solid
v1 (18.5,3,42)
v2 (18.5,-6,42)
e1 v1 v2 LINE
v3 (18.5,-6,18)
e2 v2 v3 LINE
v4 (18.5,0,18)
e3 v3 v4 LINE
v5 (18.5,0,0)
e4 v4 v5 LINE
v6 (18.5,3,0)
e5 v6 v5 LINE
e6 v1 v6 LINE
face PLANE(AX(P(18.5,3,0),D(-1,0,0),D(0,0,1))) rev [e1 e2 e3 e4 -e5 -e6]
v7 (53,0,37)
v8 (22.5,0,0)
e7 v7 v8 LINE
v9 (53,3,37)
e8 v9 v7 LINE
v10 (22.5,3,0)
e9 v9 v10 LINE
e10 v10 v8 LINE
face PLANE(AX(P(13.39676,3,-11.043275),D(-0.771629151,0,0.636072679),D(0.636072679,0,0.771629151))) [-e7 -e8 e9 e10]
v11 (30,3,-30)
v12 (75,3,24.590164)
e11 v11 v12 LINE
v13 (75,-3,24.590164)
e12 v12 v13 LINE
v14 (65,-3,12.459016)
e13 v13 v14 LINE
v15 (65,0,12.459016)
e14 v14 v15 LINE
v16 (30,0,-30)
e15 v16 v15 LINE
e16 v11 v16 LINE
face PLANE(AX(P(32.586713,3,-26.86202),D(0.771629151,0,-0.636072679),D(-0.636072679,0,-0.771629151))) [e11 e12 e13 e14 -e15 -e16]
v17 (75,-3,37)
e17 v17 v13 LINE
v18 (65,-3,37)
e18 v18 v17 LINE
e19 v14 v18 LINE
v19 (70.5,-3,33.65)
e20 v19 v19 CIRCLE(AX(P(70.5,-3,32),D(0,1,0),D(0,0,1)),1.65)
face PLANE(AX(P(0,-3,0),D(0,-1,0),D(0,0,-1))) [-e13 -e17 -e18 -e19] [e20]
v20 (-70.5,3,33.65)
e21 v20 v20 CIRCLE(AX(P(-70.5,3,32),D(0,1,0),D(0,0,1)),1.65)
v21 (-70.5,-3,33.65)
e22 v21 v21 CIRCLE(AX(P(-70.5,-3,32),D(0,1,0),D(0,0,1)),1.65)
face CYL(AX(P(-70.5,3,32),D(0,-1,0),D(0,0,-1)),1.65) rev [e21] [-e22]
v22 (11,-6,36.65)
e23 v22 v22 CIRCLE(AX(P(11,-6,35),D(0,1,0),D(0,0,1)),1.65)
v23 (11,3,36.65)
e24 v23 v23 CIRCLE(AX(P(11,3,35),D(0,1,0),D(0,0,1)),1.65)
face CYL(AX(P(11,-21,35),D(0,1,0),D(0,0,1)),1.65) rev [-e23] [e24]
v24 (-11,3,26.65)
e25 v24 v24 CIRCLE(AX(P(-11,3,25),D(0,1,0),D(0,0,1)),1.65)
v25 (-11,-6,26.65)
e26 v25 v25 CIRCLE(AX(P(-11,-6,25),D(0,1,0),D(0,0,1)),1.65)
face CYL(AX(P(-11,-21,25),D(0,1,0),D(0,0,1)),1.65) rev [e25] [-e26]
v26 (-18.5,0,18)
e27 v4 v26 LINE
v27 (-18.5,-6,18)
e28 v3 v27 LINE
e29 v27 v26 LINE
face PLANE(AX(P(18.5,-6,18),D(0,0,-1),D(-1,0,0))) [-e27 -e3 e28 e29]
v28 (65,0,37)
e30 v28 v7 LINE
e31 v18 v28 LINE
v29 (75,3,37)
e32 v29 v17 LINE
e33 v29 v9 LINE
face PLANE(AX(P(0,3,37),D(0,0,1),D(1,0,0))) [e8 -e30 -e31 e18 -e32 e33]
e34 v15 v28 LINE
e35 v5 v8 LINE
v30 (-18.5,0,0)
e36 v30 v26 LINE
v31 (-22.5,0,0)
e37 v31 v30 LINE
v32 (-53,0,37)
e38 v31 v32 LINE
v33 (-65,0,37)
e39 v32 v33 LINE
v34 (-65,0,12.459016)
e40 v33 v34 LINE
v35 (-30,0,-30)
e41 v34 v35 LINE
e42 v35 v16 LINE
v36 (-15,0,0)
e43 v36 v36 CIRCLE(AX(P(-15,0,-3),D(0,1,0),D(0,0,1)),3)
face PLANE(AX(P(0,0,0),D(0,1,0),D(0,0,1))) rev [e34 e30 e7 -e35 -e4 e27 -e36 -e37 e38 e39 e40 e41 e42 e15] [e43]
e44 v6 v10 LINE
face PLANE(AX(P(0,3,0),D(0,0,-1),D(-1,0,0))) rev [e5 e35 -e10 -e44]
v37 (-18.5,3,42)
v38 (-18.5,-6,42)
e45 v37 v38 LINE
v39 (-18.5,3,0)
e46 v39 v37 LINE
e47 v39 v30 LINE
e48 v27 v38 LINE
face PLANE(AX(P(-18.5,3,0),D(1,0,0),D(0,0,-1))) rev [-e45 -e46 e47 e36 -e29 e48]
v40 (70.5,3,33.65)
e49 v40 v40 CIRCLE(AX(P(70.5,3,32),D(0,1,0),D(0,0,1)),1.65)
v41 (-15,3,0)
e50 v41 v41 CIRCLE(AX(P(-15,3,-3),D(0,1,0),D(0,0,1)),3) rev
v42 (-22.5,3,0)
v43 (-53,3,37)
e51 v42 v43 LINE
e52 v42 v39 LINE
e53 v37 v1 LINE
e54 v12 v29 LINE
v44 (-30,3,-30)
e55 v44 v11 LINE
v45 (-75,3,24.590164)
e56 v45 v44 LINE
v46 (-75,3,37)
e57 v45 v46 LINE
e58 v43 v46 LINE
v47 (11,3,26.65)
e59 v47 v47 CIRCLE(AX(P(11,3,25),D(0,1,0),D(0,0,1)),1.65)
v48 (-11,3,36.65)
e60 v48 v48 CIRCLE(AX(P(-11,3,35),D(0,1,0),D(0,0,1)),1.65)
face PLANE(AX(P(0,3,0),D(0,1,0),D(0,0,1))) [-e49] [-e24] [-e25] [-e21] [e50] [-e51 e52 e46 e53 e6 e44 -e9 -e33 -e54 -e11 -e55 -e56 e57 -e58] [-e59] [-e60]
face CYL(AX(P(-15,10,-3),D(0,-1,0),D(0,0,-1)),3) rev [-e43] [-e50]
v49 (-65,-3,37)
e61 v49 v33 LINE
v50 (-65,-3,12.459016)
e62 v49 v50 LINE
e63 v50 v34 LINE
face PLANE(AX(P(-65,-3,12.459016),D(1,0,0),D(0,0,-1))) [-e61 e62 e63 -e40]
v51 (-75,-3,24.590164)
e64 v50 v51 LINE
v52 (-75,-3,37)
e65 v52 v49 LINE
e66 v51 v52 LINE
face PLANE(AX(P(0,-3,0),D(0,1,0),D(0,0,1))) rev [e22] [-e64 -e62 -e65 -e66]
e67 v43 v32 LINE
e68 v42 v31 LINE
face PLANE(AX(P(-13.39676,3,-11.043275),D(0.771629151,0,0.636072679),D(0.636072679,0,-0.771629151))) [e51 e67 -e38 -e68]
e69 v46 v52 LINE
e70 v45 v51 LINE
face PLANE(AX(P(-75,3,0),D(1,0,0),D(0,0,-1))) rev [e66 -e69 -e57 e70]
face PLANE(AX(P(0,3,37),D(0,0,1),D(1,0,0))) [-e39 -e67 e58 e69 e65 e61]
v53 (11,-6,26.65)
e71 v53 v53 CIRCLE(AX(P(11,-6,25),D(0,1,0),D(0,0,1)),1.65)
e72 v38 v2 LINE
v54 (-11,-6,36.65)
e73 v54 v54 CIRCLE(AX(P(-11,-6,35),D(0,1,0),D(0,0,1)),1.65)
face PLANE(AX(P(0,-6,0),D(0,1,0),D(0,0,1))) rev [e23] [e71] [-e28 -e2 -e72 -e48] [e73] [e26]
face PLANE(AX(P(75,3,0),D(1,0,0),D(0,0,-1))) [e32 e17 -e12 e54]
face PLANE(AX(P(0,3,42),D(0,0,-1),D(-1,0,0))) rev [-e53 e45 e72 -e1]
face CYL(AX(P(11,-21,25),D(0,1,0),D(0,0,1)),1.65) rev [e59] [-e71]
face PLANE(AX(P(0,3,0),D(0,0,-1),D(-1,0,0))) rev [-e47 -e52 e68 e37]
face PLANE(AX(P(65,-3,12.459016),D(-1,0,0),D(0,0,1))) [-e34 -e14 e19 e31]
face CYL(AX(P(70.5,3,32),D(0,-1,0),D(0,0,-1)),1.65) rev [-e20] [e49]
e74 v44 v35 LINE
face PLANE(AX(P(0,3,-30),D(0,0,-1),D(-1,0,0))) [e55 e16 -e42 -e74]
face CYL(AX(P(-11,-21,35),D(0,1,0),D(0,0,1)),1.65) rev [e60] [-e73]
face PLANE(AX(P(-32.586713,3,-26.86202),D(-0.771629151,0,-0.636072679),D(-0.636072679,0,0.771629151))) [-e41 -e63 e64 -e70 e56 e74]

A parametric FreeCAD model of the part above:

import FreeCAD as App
import Part
import Sketcher

V = App.Vector
Q = App.Units.Quantity

doc = App.newDocument("Part")
body = doc.addObject("PartDesign::Body", "Body")

# Sketch on XZ plane
sketch1 = doc.addObject("Sketcher::SketchObject", "Sketch")
body.addObject(sketch1)
sketch1.AttachmentSupport = (doc.XZ_Plane, [""])
sketch1.MapMode = "FlatFace"
sketch1.addGeometry([
    Part.LineSegment(V(-22.5, 0, 0), V(-18.5, 0, 0)),  # 0
    Part.LineSegment(V(-18.5, 0, 0), V(-18.5, 42, 0)),  # 1
    Part.LineSegment(V(-18.5, 42, 0), V(18.5, 42, 0)),  # 2
    Part.LineSegment(V(18.5, 42, 0), V(18.5, 0, 0)),  # 3
    Part.LineSegment(V(18.5, 0, 0), V(22.5, 0, 0)),  # 4
    Part.LineSegment(V(22.5, 0, 0), V(53, 37, 0)),  # 5
    Part.LineSegment(V(53, 37, 0), V(75, 37, 0)),  # 6
    Part.LineSegment(V(75, 37, 0), V(75, 24.6, 0)),  # 7
    Part.LineSegment(V(75, 24.6, 0), V(30, -30, 0)),  # 8
    Part.LineSegment(V(30, -30, 0), V(-30, -30, 0)),  # 9
    Part.LineSegment(V(-30, -30, 0), V(-75, 24.6, 0)),  # 10
    Part.LineSegment(V(-75, 24.6, 0), V(-75, 37, 0)),  # 11
    Part.LineSegment(V(-75, 37, 0), V(-53, 37, 0)),  # 12
    Part.LineSegment(V(-53, 37, 0), V(-22.5, 0, 0)),  # 13
    Part.Circle(V(-70.5, 32, 0), V(0, 0, 1), 1.6),  # 14
    Part.Circle(V(70.5, 32, 0), V(0, 0, 1), 1.6),  # 15
], False)
sketch1.addConstraint([
    Sketcher.Constraint("Coincident", 0, 2, 1, 1),
    Sketcher.Constraint("Coincident", 1, 2, 2, 1),
    Sketcher.Constraint("Coincident", 2, 2, 3, 1),
    Sketcher.Constraint("Coincident", 3, 2, 4, 1),
    Sketcher.Constraint("Coincident", 4, 2, 5, 1),
    Sketcher.Constraint("Coincident", 5, 2, 6, 1),
    Sketcher.Constraint("Coincident", 6, 2, 7, 1),
    Sketcher.Constraint("Coincident", 7, 2, 8, 1),
    Sketcher.Constraint("Coincident", 8, 2, 9, 1),
    Sketcher.Constraint("Coincident", 9, 2, 10, 1),
    Sketcher.Constraint("Coincident", 10, 2, 11, 1),
    Sketcher.Constraint("Coincident", 11, 2, 12, 1),
    Sketcher.Constraint("Coincident", 12, 2, 13, 1),
    Sketcher.Constraint("Coincident", 13, 2, 0, 1),
    Sketcher.Constraint("Horizontal", 0),
    Sketcher.Constraint("Vertical", 1),
    Sketcher.Constraint("Horizontal", 2),
    Sketcher.Constraint("Vertical", 3),
    Sketcher.Constraint("Horizontal", 4),
    Sketcher.Constraint("Horizontal", 6),
    Sketcher.Constraint("Vertical", 7),
    Sketcher.Constraint("Horizontal", 9),
    Sketcher.Constraint("Vertical", 11),
    Sketcher.Constraint("Horizontal", 12),
    Sketcher.Constraint("Equal", 14, 15),
    Sketcher.Constraint("Symmetric", 0, 2, 3, 2, -1, 1),
    Sketcher.Constraint("Symmetric", 14, 3, 15, 3, -2),
    Sketcher.Constraint("Symmetric", 7, 2, 10, 2, -2),
    Sketcher.Constraint("Symmetric", 5, 2, 12, 2, -2),
    Sketcher.Constraint("Symmetric", 4, 2, 13, 2, -2),
    Sketcher.Constraint("Parallel", 5, 8),
    Sketcher.Constraint("Parallel", 10, 13),
    Sketcher.Constraint("Diameter", 14, Q("3.3 mm")),
    Sketcher.Constraint("DistanceX", 0, 1, 0, 2, Q("4 mm")),
    Sketcher.Constraint("DistanceX", 2, 1, 2, 2, Q("37 mm")),
    Sketcher.Constraint("DistanceX", 6, 1, 6, 2, Q("22 mm")),
    Sketcher.Constraint("DistanceX", 9, 2, 9, 1, Q("60 mm")),
    Sketcher.Constraint("DistanceY", 1, 1, 1, 2, Q("42 mm")),
    Sketcher.Constraint("DistanceY", -1, 1, 14, 3, Q("32 mm")),
    Sketcher.Constraint("DistanceX", -1, 1, 5, 2, Q("53 mm")),
    Sketcher.Constraint("DistanceY", -1, 1, 5, 2, Q("37 mm")),
    Sketcher.Constraint("DistanceY", 8, 2, -1, 1, Q("30 mm")),
    Sketcher.Constraint("DistanceX", 14, 3, 15, 3, Q("141 mm")),
])
pad1 = doc.addObject("PartDesign::Pad", "Pad")
body.addObject(pad1)
pad1.Profile = sketch1
pad1.Length = 3
pad1.Reversed = True

# Sketch on XZ plane
sketch2 = doc.addObject("Sketcher::SketchObject", "Sketch001")
body.addObject(sketch2)
sketch2.AttachmentSupport = (doc.XZ_Plane, [""])
sketch2.MapMode = "FlatFace"
sketch2.addGeometry([
    Part.LineSegment(V(-18, 18, 0), V(-18, 42, 0)),
    Part.LineSegment(V(-18, 42, 0), V(18, 42, 0)),
    Part.LineSegment(V(18, 42, 0), V(18, 18, 0)),
    Part.LineSegment(V(18, 18, 0), V(-18, 18, 0)),
], False)
sketch2.addConstraint([
    Sketcher.Constraint("Coincident", 0, 2, 1, 1),
    Sketcher.Constraint("Coincident", 1, 2, 2, 1),
    Sketcher.Constraint("Coincident", 2, 2, 3, 1),
    Sketcher.Constraint("Coincident", 3, 2, 0, 1),
    Sketcher.Constraint("Vertical", 0),
    Sketcher.Constraint("Horizontal", 1),
    Sketcher.Constraint("Vertical", 2),
    Sketcher.Constraint("Horizontal", 3),
    Sketcher.Constraint("DistanceX", 1, 1, 1, 2, Q("37 mm")),
    Sketcher.Constraint("DistanceY", 0, 1, 0, 2, Q("24 mm")),
    Sketcher.Constraint("DistanceY", -1, 1, 0, 2, Q("42 mm")),
    Sketcher.Constraint("DistanceX", 0, 2, -1, 1, Q("18.5 mm")),
])
pad2 = doc.addObject("PartDesign::Pad", "Pad001")
body.addObject(pad2)
pad2.Profile = sketch2
pad2.Length = 6

# Sketch on XZ plane
sketch3 = doc.addObject("Sketcher::SketchObject", "Sketch002")
body.addObject(sketch3)
sketch3.AttachmentSupport = (doc.XZ_Plane, [""])
sketch3.MapMode = "FlatFace"
sketch3.addGeometry([
    Part.Circle(V(-11, 35, 0), V(0, 0, 1), 1.6),
    Part.Circle(V(11, 35, 0), V(0, 0, 1), 1.6),
    Part.Circle(V(-11, 25, 0), V(0, 0, 1), 1.6),
    Part.Circle(V(11, 25, 0), V(0, 0, 1), 1.6),
], False)
sketch3.addConstraint([
    Sketcher.Constraint("Equal", 0, 1),
    Sketcher.Constraint("Equal", 1, 2),
    Sketcher.Constraint("Equal", 2, 3),
    Sketcher.Constraint("Symmetric", 0, 3, 1, 3, -2),
    Sketcher.Constraint("Symmetric", 2, 3, 3, 3, -2),
    Sketcher.Constraint("Vertical", 0, 3, 2, 3),
    Sketcher.Constraint("Diameter", 0, Q("3.3 mm")),
    Sketcher.Constraint("DistanceX", 0, 3, -1, 1, Q("11 mm")),
    Sketcher.Constraint("DistanceY", -1, 1, 0, 3, Q("35 mm")),
    Sketcher.Constraint("DistanceY", -1, 1, 2, 3, Q("25 mm")),
])
pocket1 = doc.addObject("PartDesign::Pocket", "Pocket")
body.addObject(pocket1)
pocket1.Profile = sketch3
pocket1.Type = "ThroughAll"
pocket1.Midplane = True

# Sketch on XZ plane
sketch4 = doc.addObject("Sketcher::SketchObject", "Sketch003")
body.addObject(sketch4)
sketch4.AttachmentSupport = (doc.XZ_Plane, [""])
sketch4.MapMode = "FlatFace"
sketch4.addGeometry(Part.Circle(V(-15, -3, 0), V(0, 0, 1), 3), False)
sketch4.addConstraint([
    Sketcher.Constraint("Diameter", 0, Q("6 mm")),
    Sketcher.Constraint("DistanceX", 0, 3, -1, 1, Q("15 mm")),
    Sketcher.Constraint("DistanceY", 0, 3, -1, 1, Q("3 mm")),
])
pocket2 = doc.addObject("PartDesign::Pocket", "Pocket001")
body.addObject(pocket2)
pocket2.Profile = sketch4
pocket2.Length = 10

# Sketch on XZ plane
sketch5 = doc.addObject("Sketcher::SketchObject", "Sketch004")
body.addObject(sketch5)
sketch5.AttachmentSupport = (doc.XZ_Plane, [""])
sketch5.MapMode = "FlatFace"
sketch5.AttachmentOffset = App.Placement(V(0, 0, 3), App.Rotation())
sketch5.addGeometry([
    Part.LineSegment(V(65, 12.5, 0), V(65, 37, 0)),  # 0
    Part.LineSegment(V(65, 37, 0), V(75, 37, 0)),  # 1
    Part.LineSegment(V(75, 37, 0), V(75, 24.6, 0)),  # 2
    Part.LineSegment(V(75, 24.6, 0), V(65, 12.5, 0)),  # 3
    Part.Circle(V(70.5, 32, 0), V(0, 0, 1), 1.6),  # 4
    Part.LineSegment(V(-65, 12.5, 0), V(-75, 24.6, 0)),  # 5
    Part.LineSegment(V(-75, 24.6, 0), V(-75, 37, 0)),  # 6
    Part.LineSegment(V(-75, 37, 0), V(-65, 37, 0)),  # 7
    Part.LineSegment(V(-65, 37, 0), V(-65, 12.5, 0)),  # 8
    Part.Circle(V(-70.5, 32, 0), V(0, 0, 1), 1.6),  # 9
], False)
sketch5.addConstraint([
    Sketcher.Constraint("Coincident", 0, 2, 1, 1),
    Sketcher.Constraint("Coincident", 1, 2, 2, 1),
    Sketcher.Constraint("Coincident", 2, 2, 3, 1),
    Sketcher.Constraint("Coincident", 3, 2, 0, 1),
    Sketcher.Constraint("Coincident", 5, 2, 6, 1),
    Sketcher.Constraint("Coincident", 6, 2, 7, 1),
    Sketcher.Constraint("Coincident", 7, 2, 8, 1),
    Sketcher.Constraint("Coincident", 8, 2, 5, 1),
    Sketcher.Constraint("Vertical", 0),
    Sketcher.Constraint("Horizontal", 1),
    Sketcher.Constraint("Vertical", 2),
    Sketcher.Constraint("Vertical", 6),
    Sketcher.Constraint("Horizontal", 7),
    Sketcher.Constraint("Vertical", 8),
    Sketcher.Constraint("Equal", 4, 9),
    Sketcher.Constraint("Symmetric", 4, 3, 9, 3, -2),
    Sketcher.Constraint("Symmetric", 2, 2, 5, 2, -2),
    Sketcher.Constraint("Symmetric", 0, 2, 7, 2, -2),
    Sketcher.Constraint("Horizontal", 3, 2, 8, 2),
    Sketcher.Constraint("Diameter", 4, Q("3.3 mm")),
    Sketcher.Constraint("DistanceX", 1, 1, 1, 2, Q("10 mm")),
    Sketcher.Constraint("DistanceY", -1, 1, 4, 3, Q("32 mm")),
    Sketcher.Constraint("DistanceX", -1, 1, 0, 2, Q("65 mm")),
    Sketcher.Constraint("DistanceY", -1, 1, 0, 2, Q("37 mm")),
    Sketcher.Constraint("DistanceX", 9, 3, 4, 3, Q("141 mm")),
    Sketcher.Constraint("DistanceY", 0, 1, 0, 2, Q("24.540984 mm")),
    Sketcher.Constraint("DistanceY", 2, 2, 2, 1, Q("12.409836 mm")),
])
pad3 = doc.addObject("PartDesign::Pad", "Pad002")
body.addObject(pad3)
pad3.Profile = sketch5
pad3.Length = 3
pad3.Reversed = True

doc.recompute()
